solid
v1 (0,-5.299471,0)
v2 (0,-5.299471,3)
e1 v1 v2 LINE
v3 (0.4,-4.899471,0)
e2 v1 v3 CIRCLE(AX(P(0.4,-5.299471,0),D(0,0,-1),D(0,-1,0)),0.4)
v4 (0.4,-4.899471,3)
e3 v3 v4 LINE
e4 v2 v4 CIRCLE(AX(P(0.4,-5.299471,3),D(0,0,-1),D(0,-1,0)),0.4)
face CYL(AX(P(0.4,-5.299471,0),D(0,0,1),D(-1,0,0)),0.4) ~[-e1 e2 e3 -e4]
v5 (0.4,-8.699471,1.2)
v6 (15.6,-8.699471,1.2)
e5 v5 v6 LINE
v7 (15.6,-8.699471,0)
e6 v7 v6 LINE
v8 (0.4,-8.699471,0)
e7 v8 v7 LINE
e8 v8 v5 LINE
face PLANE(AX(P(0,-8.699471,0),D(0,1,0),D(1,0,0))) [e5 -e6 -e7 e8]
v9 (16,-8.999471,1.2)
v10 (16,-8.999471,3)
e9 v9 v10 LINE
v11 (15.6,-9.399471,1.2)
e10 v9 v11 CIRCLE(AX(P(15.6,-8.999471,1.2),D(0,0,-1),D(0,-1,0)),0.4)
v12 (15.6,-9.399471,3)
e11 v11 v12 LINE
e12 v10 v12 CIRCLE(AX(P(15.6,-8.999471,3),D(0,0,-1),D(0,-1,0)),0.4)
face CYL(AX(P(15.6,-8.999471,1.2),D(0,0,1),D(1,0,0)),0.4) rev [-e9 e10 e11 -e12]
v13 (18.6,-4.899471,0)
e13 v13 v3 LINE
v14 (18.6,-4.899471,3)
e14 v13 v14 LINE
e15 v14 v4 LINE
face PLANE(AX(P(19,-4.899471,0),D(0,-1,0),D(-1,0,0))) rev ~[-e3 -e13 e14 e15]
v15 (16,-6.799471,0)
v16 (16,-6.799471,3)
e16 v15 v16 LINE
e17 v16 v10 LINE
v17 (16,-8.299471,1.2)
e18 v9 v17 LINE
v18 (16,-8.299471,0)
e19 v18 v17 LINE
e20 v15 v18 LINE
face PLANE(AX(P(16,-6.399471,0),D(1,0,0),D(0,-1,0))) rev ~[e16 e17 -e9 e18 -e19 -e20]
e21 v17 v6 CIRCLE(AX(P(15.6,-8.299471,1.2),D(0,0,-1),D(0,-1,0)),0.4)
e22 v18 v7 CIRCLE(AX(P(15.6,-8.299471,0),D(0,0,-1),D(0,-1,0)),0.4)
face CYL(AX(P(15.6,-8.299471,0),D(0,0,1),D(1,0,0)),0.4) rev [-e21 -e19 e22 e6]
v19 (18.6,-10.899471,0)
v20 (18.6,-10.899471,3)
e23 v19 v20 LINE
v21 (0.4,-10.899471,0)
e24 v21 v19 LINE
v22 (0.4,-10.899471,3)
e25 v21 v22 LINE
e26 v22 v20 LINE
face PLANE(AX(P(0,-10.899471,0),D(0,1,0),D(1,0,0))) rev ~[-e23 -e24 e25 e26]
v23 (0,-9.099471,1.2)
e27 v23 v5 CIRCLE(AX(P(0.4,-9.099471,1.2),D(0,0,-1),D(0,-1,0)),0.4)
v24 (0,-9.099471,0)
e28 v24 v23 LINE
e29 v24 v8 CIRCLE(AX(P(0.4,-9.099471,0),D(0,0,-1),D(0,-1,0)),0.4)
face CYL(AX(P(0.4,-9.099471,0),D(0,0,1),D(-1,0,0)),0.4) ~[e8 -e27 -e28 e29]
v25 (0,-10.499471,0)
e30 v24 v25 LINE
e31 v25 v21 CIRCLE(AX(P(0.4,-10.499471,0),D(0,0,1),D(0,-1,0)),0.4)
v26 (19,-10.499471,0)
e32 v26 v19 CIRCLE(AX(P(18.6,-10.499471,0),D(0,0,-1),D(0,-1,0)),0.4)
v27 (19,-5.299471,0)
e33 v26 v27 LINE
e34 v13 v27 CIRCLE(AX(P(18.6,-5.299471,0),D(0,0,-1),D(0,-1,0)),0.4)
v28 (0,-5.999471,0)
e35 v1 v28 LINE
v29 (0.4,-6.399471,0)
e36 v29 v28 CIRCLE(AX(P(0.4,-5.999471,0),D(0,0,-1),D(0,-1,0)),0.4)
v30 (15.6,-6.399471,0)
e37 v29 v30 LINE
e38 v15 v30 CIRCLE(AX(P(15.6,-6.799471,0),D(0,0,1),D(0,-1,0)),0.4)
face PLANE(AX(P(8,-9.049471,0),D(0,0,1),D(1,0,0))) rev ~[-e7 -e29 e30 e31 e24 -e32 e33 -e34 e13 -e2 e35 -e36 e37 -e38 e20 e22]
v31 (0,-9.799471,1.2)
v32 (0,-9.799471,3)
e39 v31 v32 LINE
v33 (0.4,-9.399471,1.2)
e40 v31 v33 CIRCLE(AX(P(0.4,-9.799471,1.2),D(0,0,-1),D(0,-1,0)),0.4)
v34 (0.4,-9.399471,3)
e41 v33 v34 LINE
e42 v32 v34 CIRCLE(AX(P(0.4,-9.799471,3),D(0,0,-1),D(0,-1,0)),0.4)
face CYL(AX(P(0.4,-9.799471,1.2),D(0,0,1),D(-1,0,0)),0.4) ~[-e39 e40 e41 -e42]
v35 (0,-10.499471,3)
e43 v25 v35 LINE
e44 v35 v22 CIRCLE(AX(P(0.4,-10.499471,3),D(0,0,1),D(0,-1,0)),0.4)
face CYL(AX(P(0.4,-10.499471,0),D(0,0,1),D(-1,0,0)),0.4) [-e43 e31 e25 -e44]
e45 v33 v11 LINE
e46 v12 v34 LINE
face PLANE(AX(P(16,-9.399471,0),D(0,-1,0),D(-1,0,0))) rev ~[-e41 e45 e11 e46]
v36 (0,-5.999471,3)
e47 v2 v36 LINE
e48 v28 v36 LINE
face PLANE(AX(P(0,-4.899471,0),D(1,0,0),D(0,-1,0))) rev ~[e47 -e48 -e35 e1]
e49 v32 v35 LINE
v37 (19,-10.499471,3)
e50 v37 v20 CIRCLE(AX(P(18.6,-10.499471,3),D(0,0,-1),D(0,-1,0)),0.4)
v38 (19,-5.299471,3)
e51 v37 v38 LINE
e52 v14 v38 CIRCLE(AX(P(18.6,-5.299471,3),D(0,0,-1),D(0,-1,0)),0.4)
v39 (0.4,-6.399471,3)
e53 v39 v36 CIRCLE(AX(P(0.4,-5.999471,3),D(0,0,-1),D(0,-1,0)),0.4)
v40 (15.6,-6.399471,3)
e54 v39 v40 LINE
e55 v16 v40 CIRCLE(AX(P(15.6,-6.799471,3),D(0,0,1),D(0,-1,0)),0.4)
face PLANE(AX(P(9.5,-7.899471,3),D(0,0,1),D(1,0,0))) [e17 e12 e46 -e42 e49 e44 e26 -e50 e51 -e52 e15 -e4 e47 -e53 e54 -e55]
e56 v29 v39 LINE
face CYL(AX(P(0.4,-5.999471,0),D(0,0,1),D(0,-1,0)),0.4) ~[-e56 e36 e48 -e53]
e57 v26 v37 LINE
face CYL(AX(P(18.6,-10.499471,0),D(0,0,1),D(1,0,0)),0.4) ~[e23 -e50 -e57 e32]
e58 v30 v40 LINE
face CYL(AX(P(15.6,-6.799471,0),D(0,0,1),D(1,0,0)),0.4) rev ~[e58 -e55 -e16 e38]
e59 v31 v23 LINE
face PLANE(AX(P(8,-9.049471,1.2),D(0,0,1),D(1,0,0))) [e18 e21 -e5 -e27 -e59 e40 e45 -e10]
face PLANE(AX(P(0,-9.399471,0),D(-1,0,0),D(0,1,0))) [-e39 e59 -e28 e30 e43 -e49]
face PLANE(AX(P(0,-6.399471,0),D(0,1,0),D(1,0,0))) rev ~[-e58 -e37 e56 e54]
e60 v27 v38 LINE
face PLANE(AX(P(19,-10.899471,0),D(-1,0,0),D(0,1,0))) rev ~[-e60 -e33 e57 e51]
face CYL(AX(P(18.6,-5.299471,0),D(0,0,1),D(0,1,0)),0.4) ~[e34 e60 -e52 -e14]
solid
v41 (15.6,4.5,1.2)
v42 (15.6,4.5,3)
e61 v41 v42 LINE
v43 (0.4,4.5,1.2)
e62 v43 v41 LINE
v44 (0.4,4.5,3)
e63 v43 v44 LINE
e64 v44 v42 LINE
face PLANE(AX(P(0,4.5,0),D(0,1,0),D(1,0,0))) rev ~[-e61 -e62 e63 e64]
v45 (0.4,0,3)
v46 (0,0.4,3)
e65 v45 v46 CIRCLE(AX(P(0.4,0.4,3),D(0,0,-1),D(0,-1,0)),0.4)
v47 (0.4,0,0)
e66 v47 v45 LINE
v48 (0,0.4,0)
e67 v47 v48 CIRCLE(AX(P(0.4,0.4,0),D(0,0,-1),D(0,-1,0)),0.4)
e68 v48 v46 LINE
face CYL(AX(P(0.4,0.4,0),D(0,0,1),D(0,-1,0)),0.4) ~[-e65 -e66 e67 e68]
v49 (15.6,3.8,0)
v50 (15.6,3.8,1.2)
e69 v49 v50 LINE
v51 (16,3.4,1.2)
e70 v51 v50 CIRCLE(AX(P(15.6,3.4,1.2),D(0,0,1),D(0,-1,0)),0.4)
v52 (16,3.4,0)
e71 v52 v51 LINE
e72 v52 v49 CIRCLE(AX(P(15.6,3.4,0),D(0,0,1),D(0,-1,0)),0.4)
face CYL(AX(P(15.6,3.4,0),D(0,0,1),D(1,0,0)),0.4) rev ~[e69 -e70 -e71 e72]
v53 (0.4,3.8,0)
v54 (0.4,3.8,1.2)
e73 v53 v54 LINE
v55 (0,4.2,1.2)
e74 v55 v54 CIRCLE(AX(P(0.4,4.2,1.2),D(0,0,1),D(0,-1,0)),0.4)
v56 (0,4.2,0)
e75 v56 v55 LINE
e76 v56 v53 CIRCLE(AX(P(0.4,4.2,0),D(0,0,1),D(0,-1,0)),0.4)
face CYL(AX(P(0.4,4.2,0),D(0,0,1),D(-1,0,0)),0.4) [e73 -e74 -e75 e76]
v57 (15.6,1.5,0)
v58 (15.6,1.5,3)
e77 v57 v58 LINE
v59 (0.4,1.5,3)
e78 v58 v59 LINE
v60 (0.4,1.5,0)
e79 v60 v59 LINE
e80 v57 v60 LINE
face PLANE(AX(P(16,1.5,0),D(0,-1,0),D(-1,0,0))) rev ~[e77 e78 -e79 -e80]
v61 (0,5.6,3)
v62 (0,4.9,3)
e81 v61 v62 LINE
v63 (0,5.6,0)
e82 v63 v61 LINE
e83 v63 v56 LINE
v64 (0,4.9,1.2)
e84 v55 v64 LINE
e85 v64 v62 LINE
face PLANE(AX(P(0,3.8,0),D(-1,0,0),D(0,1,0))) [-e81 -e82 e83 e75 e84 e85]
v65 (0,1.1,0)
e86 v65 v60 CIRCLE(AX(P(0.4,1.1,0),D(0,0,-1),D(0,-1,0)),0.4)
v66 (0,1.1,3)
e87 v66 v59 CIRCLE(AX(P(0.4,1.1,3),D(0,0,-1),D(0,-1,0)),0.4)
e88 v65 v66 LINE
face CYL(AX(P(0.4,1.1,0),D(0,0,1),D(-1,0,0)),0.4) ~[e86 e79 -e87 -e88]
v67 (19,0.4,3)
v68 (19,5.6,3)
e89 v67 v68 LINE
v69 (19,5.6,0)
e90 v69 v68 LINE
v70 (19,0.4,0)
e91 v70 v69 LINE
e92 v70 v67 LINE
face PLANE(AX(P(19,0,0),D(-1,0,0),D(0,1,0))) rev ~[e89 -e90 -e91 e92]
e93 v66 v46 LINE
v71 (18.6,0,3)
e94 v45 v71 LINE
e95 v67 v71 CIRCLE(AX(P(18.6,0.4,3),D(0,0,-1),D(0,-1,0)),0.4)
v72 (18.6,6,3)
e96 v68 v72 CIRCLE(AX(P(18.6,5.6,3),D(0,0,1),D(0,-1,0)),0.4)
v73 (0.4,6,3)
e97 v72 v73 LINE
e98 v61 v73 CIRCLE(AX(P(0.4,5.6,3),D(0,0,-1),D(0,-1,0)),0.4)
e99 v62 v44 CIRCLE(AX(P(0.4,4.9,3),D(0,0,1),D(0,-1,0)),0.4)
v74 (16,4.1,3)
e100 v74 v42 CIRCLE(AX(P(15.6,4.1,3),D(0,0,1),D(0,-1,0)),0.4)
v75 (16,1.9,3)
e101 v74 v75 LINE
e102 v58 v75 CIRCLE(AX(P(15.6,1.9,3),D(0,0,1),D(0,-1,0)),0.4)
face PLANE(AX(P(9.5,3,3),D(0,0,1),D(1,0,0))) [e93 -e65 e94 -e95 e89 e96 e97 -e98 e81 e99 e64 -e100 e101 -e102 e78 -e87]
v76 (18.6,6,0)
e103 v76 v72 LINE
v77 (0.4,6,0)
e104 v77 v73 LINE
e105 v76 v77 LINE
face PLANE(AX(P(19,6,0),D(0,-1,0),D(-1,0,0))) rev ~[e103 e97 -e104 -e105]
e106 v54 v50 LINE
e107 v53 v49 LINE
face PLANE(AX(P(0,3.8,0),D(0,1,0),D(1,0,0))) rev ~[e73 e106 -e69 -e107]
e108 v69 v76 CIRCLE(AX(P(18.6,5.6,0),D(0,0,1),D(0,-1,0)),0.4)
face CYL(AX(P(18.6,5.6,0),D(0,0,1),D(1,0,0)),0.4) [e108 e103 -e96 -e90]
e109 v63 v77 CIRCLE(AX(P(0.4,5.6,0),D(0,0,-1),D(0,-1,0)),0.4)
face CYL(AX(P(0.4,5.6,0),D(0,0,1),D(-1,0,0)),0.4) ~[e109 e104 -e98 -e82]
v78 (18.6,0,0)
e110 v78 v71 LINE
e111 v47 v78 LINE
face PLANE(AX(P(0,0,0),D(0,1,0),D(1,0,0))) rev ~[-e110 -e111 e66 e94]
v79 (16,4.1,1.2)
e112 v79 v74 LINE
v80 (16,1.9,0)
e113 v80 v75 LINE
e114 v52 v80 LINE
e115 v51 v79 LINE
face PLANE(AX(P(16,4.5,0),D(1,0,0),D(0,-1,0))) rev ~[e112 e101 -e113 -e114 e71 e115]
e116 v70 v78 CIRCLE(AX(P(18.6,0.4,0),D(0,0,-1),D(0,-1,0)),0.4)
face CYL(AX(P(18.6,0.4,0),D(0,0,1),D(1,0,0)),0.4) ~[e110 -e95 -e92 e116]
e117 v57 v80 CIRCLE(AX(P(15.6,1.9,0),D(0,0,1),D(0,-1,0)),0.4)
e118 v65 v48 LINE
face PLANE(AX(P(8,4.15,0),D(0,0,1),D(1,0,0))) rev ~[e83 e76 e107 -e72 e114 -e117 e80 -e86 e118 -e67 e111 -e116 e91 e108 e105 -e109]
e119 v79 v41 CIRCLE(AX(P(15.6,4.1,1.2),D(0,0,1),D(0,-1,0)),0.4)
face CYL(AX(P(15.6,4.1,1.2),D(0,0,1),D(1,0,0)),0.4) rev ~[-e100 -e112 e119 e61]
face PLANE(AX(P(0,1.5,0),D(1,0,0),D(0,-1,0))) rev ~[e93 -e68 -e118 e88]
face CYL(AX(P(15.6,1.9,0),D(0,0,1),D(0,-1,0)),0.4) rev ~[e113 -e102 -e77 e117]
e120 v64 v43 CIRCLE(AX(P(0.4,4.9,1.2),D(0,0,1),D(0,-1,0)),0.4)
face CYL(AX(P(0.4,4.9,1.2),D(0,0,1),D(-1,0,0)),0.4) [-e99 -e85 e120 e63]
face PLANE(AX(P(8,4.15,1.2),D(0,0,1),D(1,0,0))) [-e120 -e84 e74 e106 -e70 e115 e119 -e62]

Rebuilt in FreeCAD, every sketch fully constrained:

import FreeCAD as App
import Part
import Sketcher

V = App.Vector


def edges_at(feature, points):
    """Names of the edges that pass closest to the given points."""
    edges = feature.Shape.Edges
    near = lambda p: min(range(len(edges)), key=lambda i: edges[i].distToShape(Part.Vertex(*p))[0])
    return sorted({f"Edge{near(p) + 1}" for p in points})


def add_polygon(sketch, points):
    """Adds a closed chain of lines whose ends are joined by coincident constraints."""
    first, n = sketch.GeometryCount, len(points)
    for a, b in zip(points, points[1:] + points[:1]):
        sketch.addGeometry(Part.LineSegment(App.Vector(*a, 0), App.Vector(*b, 0)), False)
    for i in range(n):
        sketch.addConstraint(Sketcher.Constraint("Coincident", first + i, 2, first + (i + 1) % n, 1))

doc = App.newDocument("Part")
params = doc.addObject("Spreadsheet::Sheet", "Params")
for row, (alias, value) in enumerate([
    ("sketch1_width", "19 mm"),
    ("sketch1_width2", "16 mm"),
    ("sketch1_height", "6 mm"),
    ("sketch1_height2", "3 mm"),
    ("pad1_length", "3 mm"),
    ("sketch2_width", "16 mm"),
    ("sketch2_width2", "19 mm"),
    ("sketch2_height", "6 mm"),
    ("sketch2_height2", "3 mm"),
    ("pad2_length", "3 mm"),
    ("sketch3_width", "16 mm"),
    ("sketch3_height", "0.7 mm"),
    ("pad3_length", "1.2 mm"),
    ("fillet_radius", "0.4 mm"),
    ("fillet2_radius", "0.4 mm"),
], start=1):
    params.set(f"A{row}", alias)
    params.set(f"B{row}", "=" + value)
    params.setAlias(f"B{row}", alias)

body = doc.addObject("PartDesign::Body", "Body")

# Sketch on XY plane
sketch1 = body.newObject("Sketcher::SketchObject", "Sketch")
sketch1.AttachmentSupport = (doc.getObject("XY_Plane"), [""])
sketch1.MapMode = "FlatFace"
add_polygon(sketch1, [(0, 1.5), (0, 0), (19, 0), (19, 6), (0, 6), (0, 4.5), (16, 4.5), (16, 1.5)])  # lines 0-7
sketch1.addConstraint([
    Sketcher.Constraint("Vertical", 0),
    Sketcher.Constraint("Horizontal", 1),
    Sketcher.Constraint("Vertical", 2),
    Sketcher.Constraint("Horizontal", 3),
    Sketcher.Constraint("Vertical", 4),
    Sketcher.Constraint("Horizontal", 5),
    Sketcher.Constraint("Vertical", 6),
    Sketcher.Constraint("Horizontal", 7),
    Sketcher.Constraint("Coincident", 0, 2, -1, 1),
    Sketcher.Constraint("PointOnObject", 3, 2, -2),
    Sketcher.Constraint("Equal", 0, 4),
    Sketcher.Constraint("DistanceX", 1, 1, 1, 2, 19.0),
    Sketcher.Constraint("DistanceX", 5, 1, 5, 2, 16.0),
    Sketcher.Constraint("DistanceY", 2, 1, 2, 2, 6.0),
    Sketcher.Constraint("DistanceY", 6, 2, 6, 1, 3.0),
])
sketch1.setExpression("Constraints[19]", "Params.sketch1_width")
sketch1.setExpression("Constraints[20]", "Params.sketch1_width2")
sketch1.setExpression("Constraints[21]", "Params.sketch1_height")
sketch1.setExpression("Constraints[22]", "Params.sketch1_height2")
pad1 = body.newObject("PartDesign::Pad", "Pad")
pad1.Profile = sketch1
pad1.setExpression("Length", "Params.pad1_length")
body2 = doc.addObject("PartDesign::Body", "Body001")

# Sketch on XY plane
sketch2 = body2.newObject("Sketcher::SketchObject", "Sketch001")
sketch2.AttachmentSupport = (doc.getObject("XY_Plane001"), [""])
sketch2.MapMode = "FlatFace"
add_polygon(sketch2, [(16, -9.399471), (0, -9.399471), (0, -10.899471), (19, -10.899471), (19, -4.899471), (0, -4.899471), (0, -6.399471), (16, -6.399471)])  # lines 0-7
sketch2.addConstraint([
    Sketcher.Constraint("Horizontal", 0),
    Sketcher.Constraint("Vertical", 1),
    Sketcher.Constraint("Horizontal", 2),
    Sketcher.Constraint("Vertical", 3),
    Sketcher.Constraint("Horizontal", 4),
    Sketcher.Constraint("Vertical", 5),
    Sketcher.Constraint("Horizontal", 6),
    Sketcher.Constraint("Vertical", 7),
    Sketcher.Constraint("PointOnObject", 0, 2, -2),
    Sketcher.Constraint("PointOnObject", 4, 2, -2),
    Sketcher.Constraint("Equal", 1, 5),
    Sketcher.Constraint("DistanceX", 0, 2, 0, 1, 16.0),
    Sketcher.Constraint("DistanceX", 2, 1, 2, 2, 19.0),
    Sketcher.Constraint("DistanceY", 3, 1, 3, 2, 6.0),
    Sketcher.Constraint("DistanceY", 7, 2, 7, 1, 3.0),
    Sketcher.Constraint("DistanceY", 0, 2, -1, 1, 9.399471),
])
sketch2.setExpression("Constraints[19]", "Params.sketch2_width")
sketch2.setExpression("Constraints[20]", "Params.sketch2_width2")
sketch2.setExpression("Constraints[21]", "Params.sketch2_height")
sketch2.setExpression("Constraints[22]", "Params.sketch2_height2")
pad2 = body2.newObject("PartDesign::Pad", "Pad001")
pad2.Profile = sketch2
pad2.setExpression("Length", "Params.pad2_length")
body.AllowCompound = True
doc.recompute()

boolean = body.newObject("PartDesign::Boolean", "Boolean")
boolean.Type = "Fuse"
boolean.addObjects([body2])

# Sketch on XY plane
sketch3 = body.newObject("Sketcher::SketchObject", "Sketch002")
sketch3.AttachmentSupport = (doc.getObject("XY_Plane"), [""])
sketch3.MapMode = "FlatFace"
add_polygon(sketch3, [(0, -8.699471), (0, -9.399471), (16, -9.399471), (16, -8.699471)])  # lines 0-3
add_polygon(sketch3, [(0, 4.5), (0, 3.8), (16, 3.8), (16, 4.5)])  # lines 4-7
sketch3.addConstraint([
    Sketcher.Constraint("Vertical", 0),
    Sketcher.Constraint("Horizontal", 1),
    Sketcher.Constraint("Vertical", 2),
    Sketcher.Constraint("Horizontal", 3),
    Sketcher.Constraint("Vertical", 4),
    Sketcher.Constraint("Horizontal", 5),
    Sketcher.Constraint("Vertical", 6),
    Sketcher.Constraint("Horizontal", 7),
    Sketcher.Constraint("PointOnObject", 0, 2, -2),
    Sketcher.Constraint("PointOnObject", 4, 2, -2),
    Sketcher.Constraint("Vertical", 2, 2, 5, 2),
    Sketcher.Constraint("Equal", 2, 4),
    Sketcher.Constraint("DistanceX", 1, 1, 1, 2, 16.0),
    Sketcher.Constraint("DistanceY", 0, 2, 0, 1, 0.7),
    Sketcher.Constraint("DistanceY", -1, 1, 4, 2, 3.8),
    Sketcher.Constraint("DistanceY", 0, 2, -1, 1, 9.399471),
])
sketch3.setExpression("Constraints[20]", "Params.sketch3_width")
sketch3.setExpression("Constraints[21]", "Params.sketch3_height")
pad3 = body.newObject("PartDesign::Pad", "Pad002")
pad3.Profile = sketch3
pad3.setExpression("Length", "Params.pad3_length")
doc.recompute()

fillet = body.newObject("PartDesign::Fillet", "Fillet")
fillet.Base = (pad3, edges_at(pad3, [
    (0, 4.5, 2.1),
    (0, 6, 1.5),
    (19, 6, 1.5),
    (19, 0, 1.5),
    (0, 0, 1.5),
    (0, 1.5, 1.5),
    (16, 1.5, 1.5),
    (16, 4.5, 2.1),
    (0, 3.8, 0.6),
    (16, 3.8, 0.6),
]))
fillet.setExpression("Radius", "Params.fillet_radius")
doc.recompute()

fillet2 = body.newObject("PartDesign::Fillet", "Fillet001")
fillet2.Base = (fillet, edges_at(fillet, [
    (19, -4.899, 1.5),
    (19, -10.899, 1.5),
    (0, -10.899, 1.5),
    (0, -9.399, 2.1),
    (16, -9.399, 2.1),
    (16, -6.399, 1.5),
    (0, -6.399, 1.5),
    (0, -4.899, 1.5),
    (0, -8.699, 0.6),
    (16, -8.699, 0.6),
]))
fillet2.setExpression("Radius", "Params.fillet2_radius")

doc.recompute()
